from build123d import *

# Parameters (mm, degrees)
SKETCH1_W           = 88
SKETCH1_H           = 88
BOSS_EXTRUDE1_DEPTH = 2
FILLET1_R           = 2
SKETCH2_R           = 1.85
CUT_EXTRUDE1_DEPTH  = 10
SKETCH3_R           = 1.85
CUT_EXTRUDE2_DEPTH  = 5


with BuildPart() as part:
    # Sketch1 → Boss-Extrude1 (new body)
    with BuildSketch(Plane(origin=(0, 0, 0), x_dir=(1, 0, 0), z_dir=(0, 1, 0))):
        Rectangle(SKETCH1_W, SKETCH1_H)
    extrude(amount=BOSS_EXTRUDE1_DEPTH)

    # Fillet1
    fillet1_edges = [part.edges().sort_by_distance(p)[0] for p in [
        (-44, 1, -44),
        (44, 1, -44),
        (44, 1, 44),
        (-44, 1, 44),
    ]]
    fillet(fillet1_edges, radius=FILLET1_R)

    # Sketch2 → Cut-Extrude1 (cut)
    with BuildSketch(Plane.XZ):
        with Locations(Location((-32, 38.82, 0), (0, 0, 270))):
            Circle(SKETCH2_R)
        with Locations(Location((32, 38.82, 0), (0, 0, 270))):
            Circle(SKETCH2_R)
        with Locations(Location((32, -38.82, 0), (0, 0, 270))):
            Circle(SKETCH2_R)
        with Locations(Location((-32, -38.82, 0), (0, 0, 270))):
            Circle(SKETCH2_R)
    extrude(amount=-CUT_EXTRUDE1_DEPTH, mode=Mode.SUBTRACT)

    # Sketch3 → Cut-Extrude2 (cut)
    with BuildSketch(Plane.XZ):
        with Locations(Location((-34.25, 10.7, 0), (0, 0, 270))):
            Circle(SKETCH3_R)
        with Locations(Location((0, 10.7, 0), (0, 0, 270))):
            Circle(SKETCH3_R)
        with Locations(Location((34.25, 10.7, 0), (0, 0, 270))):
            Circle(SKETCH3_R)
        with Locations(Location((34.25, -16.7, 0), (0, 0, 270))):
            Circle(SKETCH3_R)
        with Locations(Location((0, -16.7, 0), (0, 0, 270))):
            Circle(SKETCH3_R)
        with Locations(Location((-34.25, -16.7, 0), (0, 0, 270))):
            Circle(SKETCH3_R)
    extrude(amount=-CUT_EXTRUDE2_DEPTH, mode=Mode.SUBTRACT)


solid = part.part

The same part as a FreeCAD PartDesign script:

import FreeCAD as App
import Part
import Sketcher


def edges_at(feature, points):
    """Names of the edges that pass closest to the given points."""
    edges = feature.Shape.Edges
    near = lambda p: min(range(len(edges)), key=lambda i: edges[i].distToShape(Part.Vertex(*p))[0])
    return sorted({f"Edge{near(p) + 1}" for p in points})


def add_polygon(sketch, points):
    """Adds a closed chain of lines whose ends are joined by coincident constraints."""
    first, n = sketch.GeometryCount, len(points)
    for a, b in zip(points, points[1:] + points[:1]):
        sketch.addGeometry(Part.LineSegment(App.Vector(*a, 0), App.Vector(*b, 0)), False)
    for i in range(n):
        sketch.addConstraint(Sketcher.Constraint("Coincident", first + i, 2, first + (i + 1) % n, 1))

doc = App.newDocument("Part")
body = doc.addObject("PartDesign::Body", "Body")

sketch1 = body.newObject("Sketcher::SketchObject", "Sketch")
sketch1.AttachmentSupport = (doc.getObject("XZ_Plane"), [""])
sketch1.MapMode = "FlatFace"
add_polygon(sketch1, [(-44, -44), (-44, 44), (44, 44), (44, -44)])
sketch1.addConstraint(Sketcher.Constraint("Vertical", 0))
sketch1.addConstraint(Sketcher.Constraint("Horizontal", 1))
sketch1.addConstraint(Sketcher.Constraint("Vertical", 2))
sketch1.addConstraint(Sketcher.Constraint("Horizontal", 3))
sketch1.addConstraint(Sketcher.Constraint("Symmetric", 0, 2, 2, 2, -1, 1))
sketch1.addConstraint(Sketcher.Constraint("Equal", 3, 0))
sketch1.addConstraint(Sketcher.Constraint("DistanceX", 1, 1, 1, 2, 88.0))
pad1 = body.newObject("PartDesign::Pad", "Pad")
pad1.Profile = sketch1
pad1.Length = 2
pad1.Reversed = True
doc.recompute()

fillet = body.newObject("PartDesign::Fillet", "Fillet")
fillet.Base = (pad1, edges_at(pad1, [
    (-44, 1, -44),
    (44, 1, -44),
    (44, 1, 44),
    (-44, 1, 44),
]))
fillet.Radius = 2

sketch2 = body.newObject("Sketcher::SketchObject", "Sketch001")
sketch2.AttachmentSupport = (doc.getObject("XZ_Plane"), [""])
sketch2.MapMode = "FlatFace"
sketch2.addGeometry(Part.Circle(App.Vector(-32, 38.82, 0), App.Vector(0, 0, 1), 1.85), False)
sketch2.addGeometry(Part.Circle(App.Vector(32, 38.82, 0), App.Vector(0, 0, 1), 1.85), False)
sketch2.addGeometry(Part.Circle(App.Vector(32, -38.82, 0), App.Vector(0, 0, 1), 1.85), False)
sketch2.addGeometry(Part.Circle(App.Vector(-32, -38.82, 0), App.Vector(0, 0, 1), 1.85), False)
sketch2.addConstraint(Sketcher.Constraint("Equal", 0, 1))
sketch2.addConstraint(Sketcher.Constraint("Equal", 1, 2))
sketch2.addConstraint(Sketcher.Constraint("Equal", 2, 3))
sketch2.addConstraint(Sketcher.Constraint("Symmetric", 0, 3, 2, 3, -1, 1))
sketch2.addConstraint(Sketcher.Constraint("Symmetric", 1, 3, 3, 3, -1, 1))
sketch2.addConstraint(Sketcher.Constraint("Symmetric", 0, 3, 1, 3, -2))
sketch2.addConstraint(Sketcher.Constraint("Diameter", 0, 3.7))
sketch2.addConstraint(Sketcher.Constraint("DistanceX", 0, 3, -1, 1, 32.0))
sketch2.addConstraint(Sketcher.Constraint("DistanceY", -1, 1, 0, 3, 38.82))
pocket1 = body.newObject("PartDesign::Pocket", "Pocket")
pocket1.Profile = sketch2
pocket1.Length = 10

sketch3 = body.newObject("Sketcher::SketchObject", "Sketch002")
sketch3.AttachmentSupport = (doc.getObject("XZ_Plane"), [""])
sketch3.MapMode = "FlatFace"
sketch3.addGeometry(Part.Circle(App.Vector(-34.25, 10.7, 0), App.Vector(0, 0, 1), 1.85), False)
sketch3.addGeometry(Part.Circle(App.Vector(0, 10.7, 0), App.Vector(0, 0, 1), 1.85), False)
sketch3.addGeometry(Part.Circle(App.Vector(34.25, 10.7, 0), App.Vector(0, 0, 1), 1.85), False)
sketch3.addGeometry(Part.Circle(App.Vector(34.25, -16.7, 0), App.Vector(0, 0, 1), 1.85), False)
sketch3.addGeometry(Part.Circle(App.Vector(0, -16.7, 0), App.Vector(0, 0, 1), 1.85), False)
sketch3.addGeometry(Part.Circle(App.Vector(-34.25, -16.7, 0), App.Vector(0, 0, 1), 1.85), False)
sketch3.addConstraint(Sketcher.Constraint("Equal", 0, 1))
sketch3.addConstraint(Sketcher.Constraint("Equal", 1, 2))
sketch3.addConstraint(Sketcher.Constraint("Equal", 2, 3))
sketch3.addConstraint(Sketcher.Constraint("Equal", 3, 4))
sketch3.addConstraint(Sketcher.Constraint("Equal", 4, 5))
sketch3.addConstraint(Sketcher.Constraint("Symmetric", 0, 3, 2, 3, -2))
sketch3.addConstraint(Sketcher.Constraint("Symmetric", 3, 3, 5, 3, -2))
sketch3.addConstraint(Sketcher.Constraint("PointOnObject", 1, 3, -2))
sketch3.addConstraint(Sketcher.Constraint("PointOnObject", 4, 3, -2))
sketch3.addConstraint(Sketcher.Constraint("Horizontal", 0, 3, 1, 3))
sketch3.addConstraint(Sketcher.Constraint("Horizontal", 3, 3, 4, 3))
sketch3.addConstraint(Sketcher.Constraint("Vertical", 2, 3, 3, 3))
sketch3.addConstraint(Sketcher.Constraint("Diameter", 0, 3.7))
sketch3.addConstraint(Sketcher.Constraint("DistanceY", -1, 1, 0, 3, 10.7))
sketch3.addConstraint(Sketcher.Constraint("DistanceY", 3, 3, -1, 1, 16.7))
sketch3.addConstraint(Sketcher.Constraint("DistanceX", 0, 3, 2, 3, 68.5))
pocket2 = body.newObject("PartDesign::Pocket", "Pocket001")
pocket2.Profile = sketch3
pocket2.Length = 5

doc.recompute()
